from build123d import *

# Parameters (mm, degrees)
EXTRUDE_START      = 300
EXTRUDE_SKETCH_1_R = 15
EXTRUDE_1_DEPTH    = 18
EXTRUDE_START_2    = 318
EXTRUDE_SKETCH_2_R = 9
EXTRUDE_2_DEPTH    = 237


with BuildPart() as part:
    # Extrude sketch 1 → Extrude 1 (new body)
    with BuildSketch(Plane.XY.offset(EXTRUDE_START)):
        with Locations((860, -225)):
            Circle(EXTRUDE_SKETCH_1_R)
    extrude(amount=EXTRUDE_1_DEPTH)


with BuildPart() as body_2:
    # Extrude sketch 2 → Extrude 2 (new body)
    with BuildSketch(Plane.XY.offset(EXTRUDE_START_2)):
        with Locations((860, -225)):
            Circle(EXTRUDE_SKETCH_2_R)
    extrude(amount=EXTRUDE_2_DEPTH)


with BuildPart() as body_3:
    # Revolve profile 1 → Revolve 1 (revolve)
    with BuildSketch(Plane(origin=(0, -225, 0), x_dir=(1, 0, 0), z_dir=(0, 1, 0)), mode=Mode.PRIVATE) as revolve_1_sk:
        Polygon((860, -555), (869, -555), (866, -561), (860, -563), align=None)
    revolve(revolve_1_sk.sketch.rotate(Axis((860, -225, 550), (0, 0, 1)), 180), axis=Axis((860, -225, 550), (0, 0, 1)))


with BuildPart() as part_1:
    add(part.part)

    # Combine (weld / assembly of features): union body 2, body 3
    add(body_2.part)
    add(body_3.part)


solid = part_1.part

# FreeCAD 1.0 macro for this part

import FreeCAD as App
import Part
import Sketcher
from FreeCAD import Vector
Q = App.Units.Quantity


def add_polygon(sketch, points):
    """Adds a closed chain of lines whose ends are joined by coincident constraints."""
    first, n = sketch.GeometryCount, len(points)
    for a, b in zip(points, points[1:] + points[:1]):
        sketch.addGeometry(Part.LineSegment(App.Vector(*a, 0), App.Vector(*b, 0)), False)
    for i in range(n):
        sketch.addConstraint(Sketcher.Constraint("Coincident", first + i, 2, first + (i + 1) % n, 1))

doc = App.newDocument("Part")
params = doc.addObject("Spreadsheet::Sheet", "Params")
for row, (alias, value) in enumerate([
    ("sketch1_diameter", "30 mm"),
    ("pad1_length", "18 mm"),
    ("sketch2_diameter", "18 mm"),
    ("pad2_length", "237 mm"),
    ("sketch3_width", "9 mm"),
    ("sketch3_height", "8 mm"),
    ("revolution_angle", "360 deg"),
], start=1):
    params.set(f"A{row}", alias)
    params.set(f"B{row}", "=" + value)
    params.setAlias(f"B{row}", alias)

body = doc.addObject("PartDesign::Body", "Body")

sketch1 = body.newObject("Sketcher::SketchObject", "Sketch")
sketch1.AttachmentSupport = (doc.getObject("XY_Plane"), [""])
sketch1.MapMode = "FlatFace"
sketch1.AttachmentOffset = App.Placement(Vector(0, 0, 300), App.Rotation())
sketch1.addGeometry(Part.Circle(Vector(860, -225, 0), Vector(0, 0, 1), 15), False)
sketch1.addConstraint([
    Sketcher.Constraint("Diameter", 0, Q("30 mm")),
    Sketcher.Constraint("DistanceX", -1, 1, 0, 3, Q("860 mm")),
    Sketcher.Constraint("DistanceY", 0, 3, -1, 1, Q("225 mm")),
])
sketch1.setExpression("Constraints[0]", "Params.sketch1_diameter")
pad1 = body.newObject("PartDesign::Pad", "Pad")
pad1.Profile = sketch1
pad1.setExpression("Length", "Params.pad1_length")
body2 = doc.addObject("PartDesign::Body", "Body001")

sketch2 = body2.newObject("Sketcher::SketchObject", "Sketch001")
sketch2.AttachmentSupport = (doc.getObject("XY_Plane001"), [""])
sketch2.MapMode = "FlatFace"
sketch2.AttachmentOffset = App.Placement(Vector(0, 0, 318), App.Rotation())
sketch2.addGeometry(Part.Circle(Vector(860, -225, 0), Vector(0, 0, 1), 9), False)
sketch2.addConstraint([
    Sketcher.Constraint("Diameter", 0, Q("18 mm")),
    Sketcher.Constraint("DistanceX", -1, 1, 0, 3, Q("860 mm")),
    Sketcher.Constraint("DistanceY", 0, 3, -1, 1, Q("225 mm")),
])
sketch2.setExpression("Constraints[0]", "Params.sketch2_diameter")
pad2 = body2.newObject("PartDesign::Pad", "Pad001")
pad2.Profile = sketch2
pad2.setExpression("Length", "Params.pad2_length")
body3 = doc.addObject("PartDesign::Body", "Body002")

sketch3 = body3.newObject("Sketcher::SketchObject", "Sketch002")
sketch3.AttachmentSupport = (doc.getObject("XZ_Plane002"), [""])
sketch3.MapMode = "FlatFace"
sketch3.AttachmentOffset = App.Placement(Vector(0, 0, 225), App.Rotation())
add_polygon(sketch3, [(869, 555), (860, 555), (860, 563), (866, 561)])
sketch3.addGeometry(Part.LineSegment(Vector(860, 555, 0), Vector(860, 563, 0)), True)
sketch3.addConstraint([
    Sketcher.Constraint("Horizontal", 0),
    Sketcher.Constraint("Vertical", 1),
    Sketcher.Constraint("Vertical", 4),
    Sketcher.Constraint("Coincident", 4, 1, 0, 2),
    Sketcher.Constraint("Equal", 1, 4),
    Sketcher.Constraint("DistanceX", 0, 2, 0, 1, Q("9 mm")),
    Sketcher.Constraint("DistanceY", 1, 1, 1, 2, Q("8 mm")),
    Sketcher.Constraint("DistanceX", -1, 1, 0, 2, Q("860 mm")),
    Sketcher.Constraint("DistanceY", -1, 1, 0, 2, Q("555 mm")),
    Sketcher.Constraint("DistanceX", -1, 1, 2, 2, Q("866 mm")),
    Sketcher.Constraint("DistanceY", -1, 1, 2, 2, Q("561 mm")),
])
sketch3.setExpression("Constraints[9]", "Params.sketch3_width")
sketch3.setExpression("Constraints[10]", "Params.sketch3_height")
revolution = body3.newObject("PartDesign::Revolution", "Revolution")
revolution.Profile = sketch3
revolution.ReferenceAxis = (sketch3, ["Axis0"])
revolution.setExpression("Angle", "Params.revolution_angle")
doc.recompute()

boolean = body.newObject("PartDesign::Boolean", "Boolean")
boolean.Type = "Fuse"
boolean.addObjects([body2])
doc.recompute()

boolean2 = body.newObject("PartDesign::Boolean", "Boolean001")
boolean2.Type = "Fuse"
boolean2.addObjects([body3])

doc.recompute()
